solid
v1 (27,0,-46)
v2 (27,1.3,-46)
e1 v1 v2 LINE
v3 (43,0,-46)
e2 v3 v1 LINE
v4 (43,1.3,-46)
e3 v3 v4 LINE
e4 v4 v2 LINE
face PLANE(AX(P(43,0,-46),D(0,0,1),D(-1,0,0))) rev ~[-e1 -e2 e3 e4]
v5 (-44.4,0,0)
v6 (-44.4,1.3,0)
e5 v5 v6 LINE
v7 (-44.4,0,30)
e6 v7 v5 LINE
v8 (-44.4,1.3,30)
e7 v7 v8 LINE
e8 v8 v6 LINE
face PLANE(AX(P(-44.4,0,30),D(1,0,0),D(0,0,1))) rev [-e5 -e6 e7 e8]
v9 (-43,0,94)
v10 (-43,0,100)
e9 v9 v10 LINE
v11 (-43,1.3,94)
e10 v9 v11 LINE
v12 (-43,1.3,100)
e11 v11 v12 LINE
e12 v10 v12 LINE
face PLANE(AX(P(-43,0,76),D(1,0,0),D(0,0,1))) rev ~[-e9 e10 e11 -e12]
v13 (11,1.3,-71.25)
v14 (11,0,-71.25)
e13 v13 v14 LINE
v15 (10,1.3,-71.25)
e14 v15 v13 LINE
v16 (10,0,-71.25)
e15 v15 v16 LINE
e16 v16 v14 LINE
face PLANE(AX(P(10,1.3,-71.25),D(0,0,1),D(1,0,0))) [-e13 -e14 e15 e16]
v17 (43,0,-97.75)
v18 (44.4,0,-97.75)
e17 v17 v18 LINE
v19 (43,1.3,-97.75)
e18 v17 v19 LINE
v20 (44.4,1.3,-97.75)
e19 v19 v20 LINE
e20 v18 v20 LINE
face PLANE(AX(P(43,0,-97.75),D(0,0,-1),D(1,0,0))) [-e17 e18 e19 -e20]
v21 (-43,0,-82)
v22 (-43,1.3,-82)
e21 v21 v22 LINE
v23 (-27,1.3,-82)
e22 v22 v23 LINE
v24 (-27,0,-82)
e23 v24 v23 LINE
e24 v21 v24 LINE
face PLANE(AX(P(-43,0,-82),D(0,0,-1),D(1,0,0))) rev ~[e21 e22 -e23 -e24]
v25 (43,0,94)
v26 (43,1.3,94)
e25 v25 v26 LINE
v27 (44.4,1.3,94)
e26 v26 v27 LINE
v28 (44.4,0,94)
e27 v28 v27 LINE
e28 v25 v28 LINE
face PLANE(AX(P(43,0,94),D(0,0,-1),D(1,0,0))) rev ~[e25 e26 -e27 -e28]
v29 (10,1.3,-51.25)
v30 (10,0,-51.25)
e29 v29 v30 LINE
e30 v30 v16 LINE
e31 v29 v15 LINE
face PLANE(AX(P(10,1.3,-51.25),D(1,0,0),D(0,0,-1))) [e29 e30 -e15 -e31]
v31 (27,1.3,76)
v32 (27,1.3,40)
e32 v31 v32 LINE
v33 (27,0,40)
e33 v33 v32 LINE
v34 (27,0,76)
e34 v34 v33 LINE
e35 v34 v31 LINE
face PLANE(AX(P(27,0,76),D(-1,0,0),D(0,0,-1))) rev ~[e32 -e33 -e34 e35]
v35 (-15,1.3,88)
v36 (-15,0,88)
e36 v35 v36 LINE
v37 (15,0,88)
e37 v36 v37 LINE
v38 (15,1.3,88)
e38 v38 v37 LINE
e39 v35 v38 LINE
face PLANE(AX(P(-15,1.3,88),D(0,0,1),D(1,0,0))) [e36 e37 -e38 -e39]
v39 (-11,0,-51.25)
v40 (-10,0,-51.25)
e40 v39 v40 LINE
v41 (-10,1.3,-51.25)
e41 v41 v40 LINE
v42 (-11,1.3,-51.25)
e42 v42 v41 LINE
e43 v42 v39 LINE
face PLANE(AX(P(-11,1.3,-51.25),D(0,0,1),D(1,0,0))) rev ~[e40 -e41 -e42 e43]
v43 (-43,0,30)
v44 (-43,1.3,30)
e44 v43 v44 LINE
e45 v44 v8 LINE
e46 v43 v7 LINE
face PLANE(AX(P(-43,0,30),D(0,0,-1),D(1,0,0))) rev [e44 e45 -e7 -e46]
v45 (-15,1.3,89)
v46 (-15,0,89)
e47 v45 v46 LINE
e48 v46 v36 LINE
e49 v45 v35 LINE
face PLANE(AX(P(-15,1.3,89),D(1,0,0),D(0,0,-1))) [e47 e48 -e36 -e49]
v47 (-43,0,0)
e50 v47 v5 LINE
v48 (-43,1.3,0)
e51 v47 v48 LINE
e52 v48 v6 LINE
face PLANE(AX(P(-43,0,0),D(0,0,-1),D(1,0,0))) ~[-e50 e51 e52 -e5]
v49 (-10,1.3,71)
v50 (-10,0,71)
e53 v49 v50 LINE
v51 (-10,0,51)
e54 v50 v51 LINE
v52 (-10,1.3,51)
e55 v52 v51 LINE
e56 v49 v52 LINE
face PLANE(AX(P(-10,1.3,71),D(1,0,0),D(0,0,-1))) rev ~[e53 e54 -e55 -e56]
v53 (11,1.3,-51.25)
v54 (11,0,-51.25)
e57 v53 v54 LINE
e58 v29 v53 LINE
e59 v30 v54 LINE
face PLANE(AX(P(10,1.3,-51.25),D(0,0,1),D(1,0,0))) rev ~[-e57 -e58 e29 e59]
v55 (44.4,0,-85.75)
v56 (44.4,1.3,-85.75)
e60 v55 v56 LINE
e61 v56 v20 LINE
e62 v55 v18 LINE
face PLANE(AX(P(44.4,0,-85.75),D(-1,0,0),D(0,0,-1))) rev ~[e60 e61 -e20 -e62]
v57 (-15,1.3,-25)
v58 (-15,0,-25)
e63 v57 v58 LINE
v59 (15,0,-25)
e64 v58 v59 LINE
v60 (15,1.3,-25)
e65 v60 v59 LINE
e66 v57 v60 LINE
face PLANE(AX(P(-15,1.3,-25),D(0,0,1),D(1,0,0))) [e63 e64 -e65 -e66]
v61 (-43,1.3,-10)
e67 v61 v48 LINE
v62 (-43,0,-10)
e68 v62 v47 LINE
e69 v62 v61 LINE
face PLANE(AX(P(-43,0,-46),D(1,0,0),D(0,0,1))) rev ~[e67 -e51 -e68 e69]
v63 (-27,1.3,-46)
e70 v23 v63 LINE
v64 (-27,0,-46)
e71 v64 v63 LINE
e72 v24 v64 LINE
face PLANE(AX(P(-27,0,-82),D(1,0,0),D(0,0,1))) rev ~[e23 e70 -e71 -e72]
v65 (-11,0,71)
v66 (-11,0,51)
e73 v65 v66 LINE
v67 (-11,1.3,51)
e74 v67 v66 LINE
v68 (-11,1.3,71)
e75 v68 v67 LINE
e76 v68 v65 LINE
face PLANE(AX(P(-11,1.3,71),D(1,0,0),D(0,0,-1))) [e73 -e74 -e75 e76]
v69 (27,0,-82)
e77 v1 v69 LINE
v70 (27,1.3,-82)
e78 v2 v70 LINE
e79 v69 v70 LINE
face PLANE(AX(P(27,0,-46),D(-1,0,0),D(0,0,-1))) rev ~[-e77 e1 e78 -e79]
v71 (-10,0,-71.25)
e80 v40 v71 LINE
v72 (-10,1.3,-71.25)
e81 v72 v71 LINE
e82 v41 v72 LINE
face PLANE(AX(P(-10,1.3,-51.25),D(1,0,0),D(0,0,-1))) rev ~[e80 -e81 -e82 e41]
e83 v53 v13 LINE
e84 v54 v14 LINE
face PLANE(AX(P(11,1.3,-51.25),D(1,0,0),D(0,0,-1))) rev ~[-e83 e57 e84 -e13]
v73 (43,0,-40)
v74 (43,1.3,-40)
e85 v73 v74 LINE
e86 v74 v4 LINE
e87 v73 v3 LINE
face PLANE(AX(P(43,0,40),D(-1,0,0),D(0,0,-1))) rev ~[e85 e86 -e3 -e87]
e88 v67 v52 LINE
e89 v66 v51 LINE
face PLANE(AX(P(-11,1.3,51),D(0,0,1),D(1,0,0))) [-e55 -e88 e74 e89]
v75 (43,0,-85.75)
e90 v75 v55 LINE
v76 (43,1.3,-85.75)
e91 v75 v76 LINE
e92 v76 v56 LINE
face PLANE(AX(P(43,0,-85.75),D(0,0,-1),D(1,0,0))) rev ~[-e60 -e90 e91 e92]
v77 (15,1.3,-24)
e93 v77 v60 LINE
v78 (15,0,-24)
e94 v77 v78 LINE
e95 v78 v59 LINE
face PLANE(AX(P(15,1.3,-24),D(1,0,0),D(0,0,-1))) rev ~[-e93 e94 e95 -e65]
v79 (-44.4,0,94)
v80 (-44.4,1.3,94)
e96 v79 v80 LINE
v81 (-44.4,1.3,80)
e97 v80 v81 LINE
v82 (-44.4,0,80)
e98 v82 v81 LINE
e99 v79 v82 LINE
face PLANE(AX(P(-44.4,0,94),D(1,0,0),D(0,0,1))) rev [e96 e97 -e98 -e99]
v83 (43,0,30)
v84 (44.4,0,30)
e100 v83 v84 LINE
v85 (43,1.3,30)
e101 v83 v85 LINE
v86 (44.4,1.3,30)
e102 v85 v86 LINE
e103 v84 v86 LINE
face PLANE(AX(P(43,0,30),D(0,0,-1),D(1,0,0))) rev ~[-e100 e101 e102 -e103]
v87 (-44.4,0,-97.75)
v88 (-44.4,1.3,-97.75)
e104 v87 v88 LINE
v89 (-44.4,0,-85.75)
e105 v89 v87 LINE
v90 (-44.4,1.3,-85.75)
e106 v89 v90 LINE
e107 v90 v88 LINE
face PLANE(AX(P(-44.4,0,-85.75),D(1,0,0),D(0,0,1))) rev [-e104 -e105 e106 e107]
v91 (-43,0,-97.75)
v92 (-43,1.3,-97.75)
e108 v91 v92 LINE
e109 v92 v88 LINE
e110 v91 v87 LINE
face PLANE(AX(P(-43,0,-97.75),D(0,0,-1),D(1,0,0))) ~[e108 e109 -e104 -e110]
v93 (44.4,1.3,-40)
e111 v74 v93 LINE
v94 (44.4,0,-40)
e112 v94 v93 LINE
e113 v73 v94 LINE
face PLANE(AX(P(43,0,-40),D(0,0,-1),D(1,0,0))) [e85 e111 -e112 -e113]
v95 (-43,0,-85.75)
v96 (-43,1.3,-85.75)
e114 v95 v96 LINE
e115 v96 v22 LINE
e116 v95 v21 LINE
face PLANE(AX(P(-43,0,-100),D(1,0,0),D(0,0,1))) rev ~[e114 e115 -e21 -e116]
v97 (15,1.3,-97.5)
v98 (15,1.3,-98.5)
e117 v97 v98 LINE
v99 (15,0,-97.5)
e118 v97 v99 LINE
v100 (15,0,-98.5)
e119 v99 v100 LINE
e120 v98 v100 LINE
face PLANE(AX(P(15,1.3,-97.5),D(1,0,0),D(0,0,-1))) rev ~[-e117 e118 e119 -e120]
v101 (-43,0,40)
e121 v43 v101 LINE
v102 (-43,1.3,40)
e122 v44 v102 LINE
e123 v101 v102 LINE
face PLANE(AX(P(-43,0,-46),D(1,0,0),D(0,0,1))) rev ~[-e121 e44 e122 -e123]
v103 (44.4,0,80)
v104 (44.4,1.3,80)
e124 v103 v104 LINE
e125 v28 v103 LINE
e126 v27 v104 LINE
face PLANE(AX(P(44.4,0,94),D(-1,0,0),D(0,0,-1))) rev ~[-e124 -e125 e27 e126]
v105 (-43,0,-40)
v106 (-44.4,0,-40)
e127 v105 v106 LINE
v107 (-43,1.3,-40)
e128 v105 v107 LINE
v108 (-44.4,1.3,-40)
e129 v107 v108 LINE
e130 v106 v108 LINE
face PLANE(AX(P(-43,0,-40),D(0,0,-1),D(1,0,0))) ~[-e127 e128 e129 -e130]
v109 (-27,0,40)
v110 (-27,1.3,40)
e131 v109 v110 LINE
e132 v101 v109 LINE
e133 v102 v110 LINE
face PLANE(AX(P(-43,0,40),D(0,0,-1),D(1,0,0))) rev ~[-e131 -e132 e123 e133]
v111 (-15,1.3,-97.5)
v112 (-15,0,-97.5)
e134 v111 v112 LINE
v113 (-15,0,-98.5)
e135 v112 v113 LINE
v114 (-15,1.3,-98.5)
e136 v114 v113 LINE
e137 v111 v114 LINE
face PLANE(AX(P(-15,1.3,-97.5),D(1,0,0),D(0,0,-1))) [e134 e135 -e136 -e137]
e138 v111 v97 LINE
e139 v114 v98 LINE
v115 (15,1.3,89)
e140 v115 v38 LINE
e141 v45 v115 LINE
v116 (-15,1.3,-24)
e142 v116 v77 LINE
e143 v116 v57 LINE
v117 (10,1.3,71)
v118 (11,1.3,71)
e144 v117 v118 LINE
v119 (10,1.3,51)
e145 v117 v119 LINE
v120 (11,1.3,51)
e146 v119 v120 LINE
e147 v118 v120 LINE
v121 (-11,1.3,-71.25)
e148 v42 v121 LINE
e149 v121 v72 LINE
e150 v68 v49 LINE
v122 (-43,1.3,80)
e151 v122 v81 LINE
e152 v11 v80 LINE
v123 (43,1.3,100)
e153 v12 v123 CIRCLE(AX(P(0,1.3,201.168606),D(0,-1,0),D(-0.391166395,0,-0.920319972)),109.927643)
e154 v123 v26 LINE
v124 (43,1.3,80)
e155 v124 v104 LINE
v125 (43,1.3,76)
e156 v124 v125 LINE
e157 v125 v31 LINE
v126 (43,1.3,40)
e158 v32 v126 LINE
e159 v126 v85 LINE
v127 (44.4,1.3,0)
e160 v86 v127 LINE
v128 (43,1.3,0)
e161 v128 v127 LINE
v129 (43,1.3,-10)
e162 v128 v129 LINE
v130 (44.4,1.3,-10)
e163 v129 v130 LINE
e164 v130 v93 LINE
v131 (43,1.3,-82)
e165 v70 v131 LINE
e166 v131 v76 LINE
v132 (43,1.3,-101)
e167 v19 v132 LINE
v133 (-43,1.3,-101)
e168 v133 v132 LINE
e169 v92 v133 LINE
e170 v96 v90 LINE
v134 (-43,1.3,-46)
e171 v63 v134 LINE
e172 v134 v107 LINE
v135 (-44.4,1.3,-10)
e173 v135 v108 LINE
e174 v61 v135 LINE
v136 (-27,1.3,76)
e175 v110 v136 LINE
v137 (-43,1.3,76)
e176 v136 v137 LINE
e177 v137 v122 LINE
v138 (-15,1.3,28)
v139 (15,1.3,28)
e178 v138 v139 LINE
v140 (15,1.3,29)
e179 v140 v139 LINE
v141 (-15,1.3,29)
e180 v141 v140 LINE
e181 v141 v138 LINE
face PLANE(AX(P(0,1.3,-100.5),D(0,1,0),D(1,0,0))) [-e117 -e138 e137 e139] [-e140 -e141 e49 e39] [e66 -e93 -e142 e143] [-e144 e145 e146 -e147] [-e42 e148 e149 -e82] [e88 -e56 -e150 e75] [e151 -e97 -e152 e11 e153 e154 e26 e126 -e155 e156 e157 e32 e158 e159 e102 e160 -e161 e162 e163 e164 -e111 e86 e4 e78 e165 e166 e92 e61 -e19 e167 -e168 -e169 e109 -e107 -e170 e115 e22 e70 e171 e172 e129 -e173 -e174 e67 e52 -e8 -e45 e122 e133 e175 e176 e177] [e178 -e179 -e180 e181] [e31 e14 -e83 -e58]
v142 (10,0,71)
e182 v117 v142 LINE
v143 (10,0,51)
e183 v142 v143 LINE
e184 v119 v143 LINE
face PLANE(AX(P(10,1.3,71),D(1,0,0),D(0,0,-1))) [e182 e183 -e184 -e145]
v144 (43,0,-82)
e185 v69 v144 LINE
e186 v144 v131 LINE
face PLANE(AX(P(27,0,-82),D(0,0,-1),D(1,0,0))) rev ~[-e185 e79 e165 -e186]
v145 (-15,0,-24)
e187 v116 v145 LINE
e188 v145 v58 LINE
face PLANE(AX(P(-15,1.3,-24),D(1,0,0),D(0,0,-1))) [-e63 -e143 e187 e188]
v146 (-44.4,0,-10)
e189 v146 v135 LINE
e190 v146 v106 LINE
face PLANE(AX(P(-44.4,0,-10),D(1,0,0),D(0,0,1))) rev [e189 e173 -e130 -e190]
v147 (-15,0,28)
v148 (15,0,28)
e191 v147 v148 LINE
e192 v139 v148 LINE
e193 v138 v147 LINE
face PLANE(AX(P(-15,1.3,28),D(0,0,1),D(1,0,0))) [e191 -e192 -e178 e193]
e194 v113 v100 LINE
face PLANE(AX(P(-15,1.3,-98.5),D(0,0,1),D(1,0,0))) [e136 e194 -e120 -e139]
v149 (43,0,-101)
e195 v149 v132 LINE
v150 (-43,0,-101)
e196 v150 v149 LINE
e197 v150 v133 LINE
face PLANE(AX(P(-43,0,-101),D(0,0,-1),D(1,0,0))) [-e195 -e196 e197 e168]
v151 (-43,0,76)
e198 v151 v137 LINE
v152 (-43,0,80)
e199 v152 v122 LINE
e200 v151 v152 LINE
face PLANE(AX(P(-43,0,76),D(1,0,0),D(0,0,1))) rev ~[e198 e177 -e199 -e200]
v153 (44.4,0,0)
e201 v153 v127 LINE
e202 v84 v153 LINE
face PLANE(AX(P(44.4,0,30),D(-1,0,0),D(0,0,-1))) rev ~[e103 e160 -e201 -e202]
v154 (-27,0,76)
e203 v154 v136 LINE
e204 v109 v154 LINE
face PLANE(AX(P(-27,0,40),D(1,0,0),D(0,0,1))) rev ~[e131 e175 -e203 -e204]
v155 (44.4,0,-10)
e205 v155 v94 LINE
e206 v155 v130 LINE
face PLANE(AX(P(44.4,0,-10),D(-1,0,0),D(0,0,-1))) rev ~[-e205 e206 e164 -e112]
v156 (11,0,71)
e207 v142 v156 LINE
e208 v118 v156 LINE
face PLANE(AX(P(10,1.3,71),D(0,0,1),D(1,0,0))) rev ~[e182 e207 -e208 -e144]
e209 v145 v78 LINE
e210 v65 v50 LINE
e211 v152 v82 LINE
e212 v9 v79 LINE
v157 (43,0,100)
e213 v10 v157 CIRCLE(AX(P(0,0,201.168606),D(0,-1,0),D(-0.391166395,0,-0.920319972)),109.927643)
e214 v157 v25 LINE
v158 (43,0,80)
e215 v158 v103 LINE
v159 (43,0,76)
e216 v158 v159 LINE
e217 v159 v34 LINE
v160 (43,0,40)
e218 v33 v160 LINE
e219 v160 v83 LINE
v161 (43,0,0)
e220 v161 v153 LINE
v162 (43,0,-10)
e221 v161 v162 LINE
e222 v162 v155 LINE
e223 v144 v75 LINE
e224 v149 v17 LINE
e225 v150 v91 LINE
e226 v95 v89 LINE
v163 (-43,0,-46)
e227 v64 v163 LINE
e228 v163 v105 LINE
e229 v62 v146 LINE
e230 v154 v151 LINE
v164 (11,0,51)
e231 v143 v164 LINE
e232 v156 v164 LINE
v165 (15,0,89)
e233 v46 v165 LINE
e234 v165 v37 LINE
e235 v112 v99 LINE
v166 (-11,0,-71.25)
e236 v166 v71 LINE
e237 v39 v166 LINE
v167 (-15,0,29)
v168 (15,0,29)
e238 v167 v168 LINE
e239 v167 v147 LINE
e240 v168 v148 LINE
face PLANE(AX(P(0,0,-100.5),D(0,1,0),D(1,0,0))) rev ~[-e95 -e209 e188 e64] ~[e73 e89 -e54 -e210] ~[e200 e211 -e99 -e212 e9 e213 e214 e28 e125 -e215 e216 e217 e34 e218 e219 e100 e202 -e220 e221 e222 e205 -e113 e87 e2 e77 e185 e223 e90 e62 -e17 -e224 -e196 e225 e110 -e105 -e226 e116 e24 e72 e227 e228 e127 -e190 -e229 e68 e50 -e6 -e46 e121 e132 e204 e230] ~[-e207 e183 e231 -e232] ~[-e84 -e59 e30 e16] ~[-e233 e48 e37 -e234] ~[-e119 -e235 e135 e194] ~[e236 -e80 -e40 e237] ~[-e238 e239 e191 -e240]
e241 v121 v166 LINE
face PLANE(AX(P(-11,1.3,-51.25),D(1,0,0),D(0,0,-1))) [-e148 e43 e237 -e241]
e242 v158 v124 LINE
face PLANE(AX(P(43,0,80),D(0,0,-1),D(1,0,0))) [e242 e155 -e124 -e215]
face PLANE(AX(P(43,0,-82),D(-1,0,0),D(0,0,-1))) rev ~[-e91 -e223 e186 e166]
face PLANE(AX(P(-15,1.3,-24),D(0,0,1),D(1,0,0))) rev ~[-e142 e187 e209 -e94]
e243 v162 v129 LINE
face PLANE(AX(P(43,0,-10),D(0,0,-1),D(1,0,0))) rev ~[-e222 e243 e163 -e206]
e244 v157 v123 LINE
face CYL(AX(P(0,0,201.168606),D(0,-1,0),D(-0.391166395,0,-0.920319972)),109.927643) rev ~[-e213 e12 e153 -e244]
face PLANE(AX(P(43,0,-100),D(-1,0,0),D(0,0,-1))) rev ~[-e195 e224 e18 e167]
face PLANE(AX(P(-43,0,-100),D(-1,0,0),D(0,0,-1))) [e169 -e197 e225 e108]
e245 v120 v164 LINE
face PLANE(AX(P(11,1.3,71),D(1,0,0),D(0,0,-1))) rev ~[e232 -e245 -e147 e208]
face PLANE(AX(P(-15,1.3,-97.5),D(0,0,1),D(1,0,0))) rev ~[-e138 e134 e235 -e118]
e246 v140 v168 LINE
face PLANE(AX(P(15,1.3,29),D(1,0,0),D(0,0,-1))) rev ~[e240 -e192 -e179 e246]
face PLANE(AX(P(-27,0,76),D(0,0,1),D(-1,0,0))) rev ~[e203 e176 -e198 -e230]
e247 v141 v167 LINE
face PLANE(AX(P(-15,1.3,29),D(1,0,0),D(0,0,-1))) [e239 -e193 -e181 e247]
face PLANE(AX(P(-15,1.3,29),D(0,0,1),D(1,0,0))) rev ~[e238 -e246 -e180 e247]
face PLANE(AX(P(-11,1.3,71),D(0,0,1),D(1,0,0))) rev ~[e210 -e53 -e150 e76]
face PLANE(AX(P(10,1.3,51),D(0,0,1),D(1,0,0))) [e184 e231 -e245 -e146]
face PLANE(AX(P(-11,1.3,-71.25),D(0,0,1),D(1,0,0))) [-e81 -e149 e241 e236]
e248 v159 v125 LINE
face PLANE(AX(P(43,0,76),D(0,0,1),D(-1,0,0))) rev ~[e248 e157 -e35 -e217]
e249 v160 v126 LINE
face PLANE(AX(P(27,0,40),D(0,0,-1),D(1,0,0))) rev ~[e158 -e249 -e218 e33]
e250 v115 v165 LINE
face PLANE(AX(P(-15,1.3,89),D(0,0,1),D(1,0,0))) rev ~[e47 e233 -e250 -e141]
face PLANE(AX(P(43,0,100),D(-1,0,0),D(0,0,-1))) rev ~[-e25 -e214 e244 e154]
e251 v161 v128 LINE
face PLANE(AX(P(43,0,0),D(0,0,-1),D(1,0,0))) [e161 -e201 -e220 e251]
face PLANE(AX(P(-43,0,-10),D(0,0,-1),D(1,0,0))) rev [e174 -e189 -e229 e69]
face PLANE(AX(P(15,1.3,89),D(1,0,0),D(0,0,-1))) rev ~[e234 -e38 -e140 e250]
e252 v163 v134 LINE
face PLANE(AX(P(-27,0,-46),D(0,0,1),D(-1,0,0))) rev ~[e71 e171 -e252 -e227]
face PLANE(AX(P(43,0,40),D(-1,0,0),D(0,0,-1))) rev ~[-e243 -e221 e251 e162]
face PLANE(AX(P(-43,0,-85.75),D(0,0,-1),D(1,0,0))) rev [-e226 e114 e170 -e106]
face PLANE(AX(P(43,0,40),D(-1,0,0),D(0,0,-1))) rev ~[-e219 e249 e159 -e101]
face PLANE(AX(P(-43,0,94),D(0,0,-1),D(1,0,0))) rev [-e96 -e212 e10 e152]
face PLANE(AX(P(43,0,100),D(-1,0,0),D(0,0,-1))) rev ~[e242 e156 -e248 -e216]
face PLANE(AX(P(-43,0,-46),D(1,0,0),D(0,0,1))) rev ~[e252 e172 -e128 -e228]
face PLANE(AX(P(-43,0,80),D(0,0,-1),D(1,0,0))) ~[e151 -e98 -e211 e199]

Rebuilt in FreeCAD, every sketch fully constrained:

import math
import FreeCAD as App
import Part
import Sketcher

doc = App.newDocument("Part")
body = doc.addObject("PartDesign::Body", "Body")

sketch1 = body.newObject("Sketcher::SketchObject", "Sketch")
sketch1.AttachmentSupport = (doc.getObject("XZ_Plane"), [""])
sketch1.MapMode = "FlatFace"
sketch1.addGeometry(Part.LineSegment(App.Vector(43, -100, 0), App.Vector(-43, -100, 0)), False)
sketch1.addGeometry(Part.LineSegment(App.Vector(-43, -100, 0), App.Vector(-43, -82, 0)), False)
sketch1.addGeometry(Part.LineSegment(App.Vector(-43, -82, 0), App.Vector(-27, -82, 0)), False)
sketch1.addGeometry(Part.LineSegment(App.Vector(-27, -82, 0), App.Vector(-27, -46, 0)), False)
sketch1.addGeometry(Part.LineSegment(App.Vector(-27, -46, 0), App.Vector(-43, -46, 0)), False)
sketch1.addGeometry(Part.LineSegment(App.Vector(-43, -46, 0), App.Vector(-43, 40, 0)), False)
sketch1.addGeometry(Part.LineSegment(App.Vector(-43, 40, 0), App.Vector(-27, 40, 0)), False)
sketch1.addGeometry(Part.LineSegment(App.Vector(-27, 40, 0), App.Vector(-27, 76, 0)), False)
sketch1.addGeometry(Part.LineSegment(App.Vector(-27, 76, 0), App.Vector(-43, 76, 0)), False)
sketch1.addGeometry(Part.LineSegment(App.Vector(-43, 76, 0), App.Vector(-43, 100, 0)), False)
sketch1.addGeometry(Part.ArcOfCircle(Part.Circle(App.Vector(0, 201, 0), App.Vector(0, 0, 1), 110), math.radians(-113), math.radians(-67)), False)
sketch1.addGeometry(Part.LineSegment(App.Vector(43, 100, 0), App.Vector(43, 76, 0)), False)
sketch1.addGeometry(Part.LineSegment(App.Vector(43, 76, 0), App.Vector(27, 76, 0)), False)
sketch1.addGeometry(Part.LineSegment(App.Vector(27, 76, 0), App.Vector(27, 40, 0)), False)
sketch1.addGeometry(Part.LineSegment(App.Vector(27, 40, 0), App.Vector(43, 40, 0)), False)
sketch1.addGeometry(Part.LineSegment(App.Vector(43, 40, 0), App.Vector(43, -46, 0)), False)
sketch1.addGeometry(Part.LineSegment(App.Vector(43, -46, 0), App.Vector(27, -46, 0)), False)
sketch1.addGeometry(Part.LineSegment(App.Vector(27, -46, 0), App.Vector(27, -82, 0)), False)
sketch1.addGeometry(Part.LineSegment(App.Vector(27, -82, 0), App.Vector(43, -82, 0)), False)
sketch1.addGeometry(Part.LineSegment(App.Vector(43, -82, 0), App.Vector(43, -100, 0)), False)
sketch1.addConstraint(Sketcher.Constraint("Coincident", 0, 2, 1, 1))
sketch1.addConstraint(Sketcher.Constraint("Coincident", 1, 2, 2, 1))
sketch1.addConstraint(Sketcher.Constraint("Coincident", 2, 2, 3, 1))
sketch1.addConstraint(Sketcher.Constraint("Coincident", 3, 2, 4, 1))
sketch1.addConstraint(Sketcher.Constraint("Coincident", 4, 2, 5, 1))
sketch1.addConstraint(Sketcher.Constraint("Coincident", 5, 2, 6, 1))
sketch1.addConstraint(Sketcher.Constraint("Coincident", 6, 2, 7, 1))
sketch1.addConstraint(Sketcher.Constraint("Coincident", 7, 2, 8, 1))
sketch1.addConstraint(Sketcher.Constraint("Coincident", 8, 2, 9, 1))
sketch1.addConstraint(Sketcher.Constraint("Coincident", 9, 2, 10, 1))
sketch1.addConstraint(Sketcher.Constraint("Coincident", 10, 2, 11, 1))
sketch1.addConstraint(Sketcher.Constraint("Coincident", 11, 2, 12, 1))
sketch1.addConstraint(Sketcher.Constraint("Coincident", 12, 2, 13, 1))
sketch1.addConstraint(Sketcher.Constraint("Coincident", 13, 2, 14, 1))
sketch1.addConstraint(Sketcher.Constraint("Coincident", 14, 2, 15, 1))
sketch1.addConstraint(Sketcher.Constraint("Coincident", 15, 2, 16, 1))
sketch1.addConstraint(Sketcher.Constraint("Coincident", 16, 2, 17, 1))
sketch1.addConstraint(Sketcher.Constraint("Coincident", 17, 2, 18, 1))
sketch1.addConstraint(Sketcher.Constraint("Coincident", 18, 2, 19, 1))
sketch1.addConstraint(Sketcher.Constraint("Coincident", 19, 2, 0, 1))
sketch1.addConstraint(Sketcher.Constraint("Horizontal", 0))
sketch1.addConstraint(Sketcher.Constraint("Vertical", 1))
sketch1.addConstraint(Sketcher.Constraint("Horizontal", 2))
sketch1.addConstraint(Sketcher.Constraint("Vertical", 3))
sketch1.addConstraint(Sketcher.Constraint("Horizontal", 4))
sketch1.addConstraint(Sketcher.Constraint("Vertical", 5))
sketch1.addConstraint(Sketcher.Constraint("Horizontal", 6))
sketch1.addConstraint(Sketcher.Constraint("Vertical", 7))
sketch1.addConstraint(Sketcher.Constraint("Horizontal", 8))
sketch1.addConstraint(Sketcher.Constraint("Vertical", 9))
sketch1.addConstraint(Sketcher.Constraint("Vertical", 11))
sketch1.addConstraint(Sketcher.Constraint("Horizontal", 12))
sketch1.addConstraint(Sketcher.Constraint("Vertical", 13))
sketch1.addConstraint(Sketcher.Constraint("Horizontal", 14))
sketch1.addConstraint(Sketcher.Constraint("Vertical", 15))
sketch1.addConstraint(Sketcher.Constraint("Horizontal", 16))
sketch1.addConstraint(Sketcher.Constraint("Vertical", 17))
sketch1.addConstraint(Sketcher.Constraint("Horizontal", 18))
sketch1.addConstraint(Sketcher.Constraint("Vertical", 19))
sketch1.addConstraint(Sketcher.Constraint("Symmetric", 0, 2, 10, 2, -1, 1))
sketch1.addConstraint(Sketcher.Constraint("Symmetric", 9, 2, 19, 2, -1, 1))
sketch1.addConstraint(Sketcher.Constraint("Symmetric", 8, 2, 11, 2, -2))
sketch1.addConstraint(Sketcher.Constraint("Symmetric", 6, 2, 13, 2, -2))
sketch1.addConstraint(Sketcher.Constraint("Symmetric", 4, 2, 15, 2, -2))
sketch1.addConstraint(Sketcher.Constraint("Symmetric", 2, 2, 17, 2, -2))
sketch1.addConstraint(Sketcher.Constraint("Vertical", 1, 2, 4, 2))
sketch1.addConstraint(Sketcher.Constraint("Vertical", 3, 2, 6, 2))
sketch1.addConstraint(Sketcher.Constraint("Equal", 0, 5))
sketch1.addConstraint(Sketcher.Constraint("Equal", 3, 7))
sketch1.addConstraint(Sketcher.Constraint("DistanceX", 0, 2, 0, 1, 86.0))
sketch1.addConstraint(Sketcher.Constraint("DistanceX", 2, 1, 2, 2, 16.0))
sketch1.addConstraint(Sketcher.Constraint("DistanceY", 1, 1, 1, 2, 18.0))
sketch1.addConstraint(Sketcher.Constraint("DistanceY", 3, 1, 3, 2, 36.0))
sketch1.addConstraint(Sketcher.Constraint("DistanceY", 9, 1, 9, 2, 24.0))
sketch1.addConstraint(Sketcher.Constraint("Radius", 10, 109.927643))
pad1 = body.newObject("PartDesign::Pad", "Pad")
pad1.Profile = sketch1
pad1.Length = 1.3
pad1.Reversed = True

sketch2 = body.newObject("Sketcher::SketchObject", "Sketch001")
sketch2.AttachmentSupport = (doc.getObject("XZ_Plane"), [""])
sketch2.MapMode = "FlatFace"
sketch2.addGeometry(Part.LineSegment(App.Vector(43, -97.8, 0), App.Vector(43, -85.8, 0)), False)
sketch2.addGeometry(Part.LineSegment(App.Vector(43, -85.8, 0), App.Vector(44.4, -85.8, 0)), False)
sketch2.addGeometry(Part.LineSegment(App.Vector(44.4, -85.8, 0), App.Vector(44.4, -97.8, 0)), False)
sketch2.addGeometry(Part.LineSegment(App.Vector(44.4, -97.8, 0), App.Vector(43, -97.8, 0)), False)
sketch2.addGeometry(Part.LineSegment(App.Vector(43, -40, 0), App.Vector(43, -10, 0)), False)
sketch2.addGeometry(Part.LineSegment(App.Vector(43, -10, 0), App.Vector(44.4, -10, 0)), False)
sketch2.addGeometry(Part.LineSegment(App.Vector(44.4, -10, 0), App.Vector(44.4, -40, 0)), False)
sketch2.addGeometry(Part.LineSegment(App.Vector(44.4, -40, 0), App.Vector(43, -40, 0)), False)
sketch2.addGeometry(Part.LineSegment(App.Vector(43, 80, 0), App.Vector(43, 94, 0)), False)
sketch2.addGeometry(Part.LineSegment(App.Vector(43, 94, 0), App.Vector(44.4, 94, 0)), False)
sketch2.addGeometry(Part.LineSegment(App.Vector(44.4, 94, 0), App.Vector(44.4, 80, 0)), False)
sketch2.addGeometry(Part.LineSegment(App.Vector(44.4, 80, 0), App.Vector(43, 80, 0)), False)
sketch2.addGeometry(Part.LineSegment(App.Vector(43, 0, 0), App.Vector(43, 30, 0)), False)
sketch2.addGeometry(Part.LineSegment(App.Vector(43, 30, 0), App.Vector(44.4, 30, 0)), False)
sketch2.addGeometry(Part.LineSegment(App.Vector(44.4, 30, 0), App.Vector(44.4, 0, 0)), False)
sketch2.addGeometry(Part.LineSegment(App.Vector(44.4, 0, 0), App.Vector(43, 0, 0)), False)
sketch2.addConstraint(Sketcher.Constraint("Coincident", 0, 2, 1, 1))
sketch2.addConstraint(Sketcher.Constraint("Coincident", 1, 2, 2, 1))
sketch2.addConstraint(Sketcher.Constraint("Coincident", 2, 2, 3, 1))
sketch2.addConstraint(Sketcher.Constraint("Coincident", 3, 2, 0, 1))
sketch2.addConstraint(Sketcher.Constraint("Coincident", 4, 2, 5, 1))
sketch2.addConstraint(Sketcher.Constraint("Coincident", 5, 2, 6, 1))
sketch2.addConstraint(Sketcher.Constraint("Coincident", 6, 2, 7, 1))
sketch2.addConstraint(Sketcher.Constraint("Coincident", 7, 2, 4, 1))
sketch2.addConstraint(Sketcher.Constraint("Coincident", 8, 2, 9, 1))
sketch2.addConstraint(Sketcher.Constraint("Coincident", 9, 2, 10, 1))
sketch2.addConstraint(Sketcher.Constraint("Coincident", 10, 2, 11, 1))
sketch2.addConstraint(Sketcher.Constraint("Coincident", 11, 2, 8, 1))
sketch2.addConstraint(Sketcher.Constraint("Coincident", 12, 2, 13, 1))
sketch2.addConstraint(Sketcher.Constraint("Coincident", 13, 2, 14, 1))
sketch2.addConstraint(Sketcher.Constraint("Coincident", 14, 2, 15, 1))
sketch2.addConstraint(Sketcher.Constraint("Coincident", 15, 2, 12, 1))
sketch2.addConstraint(Sketcher.Constraint("Vertical", 0))
sketch2.addConstraint(Sketcher.Constraint("Horizontal", 1))
sketch2.addConstraint(Sketcher.Constraint("Vertical", 2))
sketch2.addConstraint(Sketcher.Constraint("Horizontal", 3))
sketch2.addConstraint(Sketcher.Constraint("Vertical", 4))
sketch2.addConstraint(Sketcher.Constraint("Horizontal", 5))
sketch2.addConstraint(Sketcher.Constraint("Vertical", 6))
sketch2.addConstraint(Sketcher.Constraint("Horizontal", 7))
sketch2.addConstraint(Sketcher.Constraint("Vertical", 8))
sketch2.addConstraint(Sketcher.Constraint("Horizontal", 9))
sketch2.addConstraint(Sketcher.Constraint("Vertical", 10))
sketch2.addConstraint(Sketcher.Constraint("Horizontal", 11))
sketch2.addConstraint(Sketcher.Constraint("Vertical", 12))
sketch2.addConstraint(Sketcher.Constraint("Horizontal", 13))
sketch2.addConstraint(Sketcher.Constraint("Vertical", 14))
sketch2.addConstraint(Sketcher.Constraint("Horizontal", 15))
sketch2.addConstraint(Sketcher.Constraint("PointOnObject", 14, 2, -1))
sketch2.addConstraint(Sketcher.Constraint("Vertical", 3, 2, 4, 2))
sketch2.addConstraint(Sketcher.Constraint("Vertical", 2, 2, 5, 2))
sketch2.addConstraint(Sketcher.Constraint("Vertical", 7, 2, 8, 2))
sketch2.addConstraint(Sketcher.Constraint("Vertical", 6, 2, 9, 2))
sketch2.addConstraint(Sketcher.Constraint("Vertical", 11, 2, 12, 2))
sketch2.addConstraint(Sketcher.Constraint("Vertical", 10, 2, 13, 2))
sketch2.addConstraint(Sketcher.Constraint("Equal", 6, 12))
sketch2.addConstraint(Sketcher.Constraint("DistanceY", 0, 1, 0, 2, 12.0))
sketch2.addConstraint(Sketcher.Constraint("DistanceY", 4, 1, 4, 2, 30.0))
sketch2.addConstraint(Sketcher.Constraint("DistanceY", 8, 1, 8, 2, 14.0))
sketch2.addConstraint(Sketcher.Constraint("DistanceX", 1, 1, 1, 2, 1.4))
sketch2.addConstraint(Sketcher.Constraint("DistanceX", -1, 1, 0, 2, 43.0))
sketch2.addConstraint(Sketcher.Constraint("DistanceY", 4, 2, -1, 1, 10.0))
sketch2.addConstraint(Sketcher.Constraint("DistanceY", -1, 1, 8, 2, 94.0))
sketch2.addConstraint(Sketcher.Constraint("DistanceY", 0, 2, -1, 1, 85.75))
pad2 = body.newObject("PartDesign::Pad", "Pad001")
pad2.Profile = sketch2
pad2.Length = 1.3
pad2.Reversed = True
doc.recompute()

mirrored = body.newObject("PartDesign::Mirrored", "Mirrored")
mirrored.Originals = [pad2]
mirrored.MirrorPlane = (doc.getObject("YZ_Plane"), [""])
body.Tip = mirrored

sketch3 = body.newObject("Sketcher::SketchObject", "Sketch002")
sketch3.AttachmentSupport = (doc.getObject("XZ_Plane"), [""])
sketch3.MapMode = "FlatFace"
sketch3.AttachmentOffset = App.Placement(App.Vector(0, 0, -1.3), App.Rotation())
sketch3.addGeometry(Part.LineSegment(App.Vector(-15, -98.5, 0), App.Vector(-15, -97.5, 0)), False)
sketch3.addGeometry(Part.LineSegment(App.Vector(-15, -97.5, 0), App.Vector(15, -97.5, 0)), False)
sketch3.addGeometry(Part.LineSegment(App.Vector(15, -97.5, 0), App.Vector(15, -98.5, 0)), False)
sketch3.addGeometry(Part.LineSegment(App.Vector(15, -98.5, 0), App.Vector(-15, -98.5, 0)), False)
sketch3.addConstraint(Sketcher.Constraint("Coincident", 0, 2, 1, 1))
sketch3.addConstraint(Sketcher.Constraint("Coincident", 1, 2, 2, 1))
sketch3.addConstraint(Sketcher.Constraint("Coincident", 2, 2, 3, 1))
sketch3.addConstraint(Sketcher.Constraint("Coincident", 3, 2, 0, 1))
sketch3.addConstraint(Sketcher.Constraint("Vertical", 0))
sketch3.addConstraint(Sketcher.Constraint("Horizontal", 1))
sketch3.addConstraint(Sketcher.Constraint("Vertical", 2))
sketch3.addConstraint(Sketcher.Constraint("Horizontal", 3))
sketch3.addConstraint(Sketcher.Constraint("DistanceX", 1, 1, 1, 2, 30.0))
sketch3.addConstraint(Sketcher.Constraint("DistanceY", 0, 1, 0, 2, 1.0))
sketch3.addConstraint(Sketcher.Constraint("DistanceX", 0, 2, -1, 1, 15.0))
sketch3.addConstraint(Sketcher.Constraint("DistanceY", 0, 2, -1, 1, 97.5))
pocket1 = body.newObject("PartDesign::Pocket", "Pocket")
pocket1.Profile = sketch3
pocket1.Type = "ThroughAll"
pocket1.Reversed = True

sketch4 = body.newObject("Sketcher::SketchObject", "Sketch003")
sketch4.AttachmentSupport = (doc.getObject("XZ_Plane"), [""])
sketch4.MapMode = "FlatFace"
sketch4.AttachmentOffset = App.Placement(App.Vector(0, 0, -1.3), App.Rotation())
sketch4.addGeometry(Part.LineSegment(App.Vector(-15, 88, 0), App.Vector(-15, 89, 0)), False)
sketch4.addGeometry(Part.LineSegment(App.Vector(-15, 89, 0), App.Vector(15, 89, 0)), False)
sketch4.addGeometry(Part.LineSegment(App.Vector(15, 89, 0), App.Vector(15, 88, 0)), False)
sketch4.addGeometry(Part.LineSegment(App.Vector(15, 88, 0), App.Vector(-15, 88, 0)), False)
sketch4.addConstraint(Sketcher.Constraint("Coincident", 0, 2, 1, 1))
sketch4.addConstraint(Sketcher.Constraint("Coincident", 1, 2, 2, 1))
sketch4.addConstraint(Sketcher.Constraint("Coincident", 2, 2, 3, 1))
sketch4.addConstraint(Sketcher.Constraint("Coincident", 3, 2, 0, 1))
sketch4.addConstraint(Sketcher.Constraint("Vertical", 0))
sketch4.addConstraint(Sketcher.Constraint("Horizontal", 1))
sketch4.addConstraint(Sketcher.Constraint("Vertical", 2))
sketch4.addConstraint(Sketcher.Constraint("Horizontal", 3))
sketch4.addConstraint(Sketcher.Constraint("DistanceX", 1, 1, 1, 2, 30.0))
sketch4.addConstraint(Sketcher.Constraint("DistanceY", 0, 1, 0, 2, 1.0))
sketch4.addConstraint(Sketcher.Constraint("DistanceX", 0, 2, -1, 1, 15.0))
sketch4.addConstraint(Sketcher.Constraint("DistanceY", -1, 1, 0, 2, 89.0))
pocket2 = body.newObject("PartDesign::Pocket", "Pocket001")
pocket2.Profile = sketch4
pocket2.Type = "ThroughAll"
pocket2.Reversed = True

sketch5 = body.newObject("Sketcher::SketchObject", "Sketch004")
sketch5.AttachmentSupport = (doc.getObject("XZ_Plane"), [""])
sketch5.MapMode = "FlatFace"
sketch5.AttachmentOffset = App.Placement(App.Vector(0, 0, -1.3), App.Rotation())
sketch5.addGeometry(Part.LineSegment(App.Vector(-15, -25, 0), App.Vector(-15, -24, 0)), False)
sketch5.addGeometry(Part.LineSegment(App.Vector(-15, -24, 0), App.Vector(15, -24, 0)), False)
sketch5.addGeometry(Part.LineSegment(App.Vector(15, -24, 0), App.Vector(15, -25, 0)), False)
sketch5.addGeometry(Part.LineSegment(App.Vector(15, -25, 0), App.Vector(-15, -25, 0)), False)
sketch5.addConstraint(Sketcher.Constraint("Coincident", 0, 2, 1, 1))
sketch5.addConstraint(Sketcher.Constraint("Coincident", 1, 2, 2, 1))
sketch5.addConstraint(Sketcher.Constraint("Coincident", 2, 2, 3, 1))
sketch5.addConstraint(Sketcher.Constraint("Coincident", 3, 2, 0, 1))
sketch5.addConstraint(Sketcher.Constraint("Vertical", 0))
sketch5.addConstraint(Sketcher.Constraint("Horizontal", 1))
sketch5.addConstraint(Sketcher.Constraint("Vertical", 2))
sketch5.addConstraint(Sketcher.Constraint("Horizontal", 3))
sketch5.addConstraint(Sketcher.Constraint("DistanceX", 1, 1, 1, 2, 30.0))
sketch5.addConstraint(Sketcher.Constraint("DistanceY", 0, 1, 0, 2, 1.0))
sketch5.addConstraint(Sketcher.Constraint("DistanceX", 0, 2, -1, 1, 15.0))
sketch5.addConstraint(Sketcher.Constraint("DistanceY", 0, 2, -1, 1, 24.0))
pocket3 = body.newObject("PartDesign::Pocket", "Pocket002")
pocket3.Profile = sketch5
pocket3.Type = "ThroughAll"
pocket3.Reversed = True

sketch6 = body.newObject("Sketcher::SketchObject", "Sketch005")
sketch6.AttachmentSupport = (doc.getObject("XZ_Plane"), [""])
sketch6.MapMode = "FlatFace"
sketch6.AttachmentOffset = App.Placement(App.Vector(0, 0, -1.3), App.Rotation())
sketch6.addGeometry(Part.LineSegment(App.Vector(-11, 51, 0), App.Vector(-11, 71, 0)), False)
sketch6.addGeometry(Part.LineSegment(App.Vector(-11, 71, 0), App.Vector(-10, 71, 0)), False)
sketch6.addGeometry(Part.LineSegment(App.Vector(-10, 71, 0), App.Vector(-10, 51, 0)), False)
sketch6.addGeometry(Part.LineSegment(App.Vector(-10, 51, 0), App.Vector(-11, 51, 0)), False)
sketch6.addGeometry(Part.LineSegment(App.Vector(10, 51, 0), App.Vector(10, 71, 0)), False)
sketch6.addGeometry(Part.LineSegment(App.Vector(10, 71, 0), App.Vector(11, 71, 0)), False)
sketch6.addGeometry(Part.LineSegment(App.Vector(11, 71, 0), App.Vector(11, 51, 0)), False)
sketch6.addGeometry(Part.LineSegment(App.Vector(11, 51, 0), App.Vector(10, 51, 0)), False)
sketch6.addGeometry(Part.LineSegment(App.Vector(-15, 28, 0), App.Vector(-15, 29, 0)), False)
sketch6.addGeometry(Part.LineSegment(App.Vector(-15, 29, 0), App.Vector(15, 29, 0)), False)
sketch6.addGeometry(Part.LineSegment(App.Vector(15, 29, 0), App.Vector(15, 28, 0)), False)
sketch6.addGeometry(Part.LineSegment(App.Vector(15, 28, 0), App.Vector(-15, 28, 0)), False)
sketch6.addConstraint(Sketcher.Constraint("Coincident", 0, 2, 1, 1))
sketch6.addConstraint(Sketcher.Constraint("Coincident", 1, 2, 2, 1))
sketch6.addConstraint(Sketcher.Constraint("Coincident", 2, 2, 3, 1))
sketch6.addConstraint(Sketcher.Constraint("Coincident", 3, 2, 0, 1))
sketch6.addConstraint(Sketcher.Constraint("Coincident", 4, 2, 5, 1))
sketch6.addConstraint(Sketcher.Constraint("Coincident", 5, 2, 6, 1))
sketch6.addConstraint(Sketcher.Constraint("Coincident", 6, 2, 7, 1))
sketch6.addConstraint(Sketcher.Constraint("Coincident", 7, 2, 4, 1))
sketch6.addConstraint(Sketcher.Constraint("Coincident", 8, 2, 9, 1))
sketch6.addConstraint(Sketcher.Constraint("Coincident", 9, 2, 10, 1))
sketch6.addConstraint(Sketcher.Constraint("Coincident", 10, 2, 11, 1))
sketch6.addConstraint(Sketcher.Constraint("Coincident", 11, 2, 8, 1))
sketch6.addConstraint(Sketcher.Constraint("Vertical", 0))
sketch6.addConstraint(Sketcher.Constraint("Horizontal", 1))
sketch6.addConstraint(Sketcher.Constraint("Vertical", 2))
sketch6.addConstraint(Sketcher.Constraint("Horizontal", 3))
sketch6.addConstraint(Sketcher.Constraint("Vertical", 4))
sketch6.addConstraint(Sketcher.Constraint("Horizontal", 5))
sketch6.addConstraint(Sketcher.Constraint("Vertical", 6))
sketch6.addConstraint(Sketcher.Constraint("Horizontal", 7))
sketch6.addConstraint(Sketcher.Constraint("Vertical", 8))
sketch6.addConstraint(Sketcher.Constraint("Horizontal", 9))
sketch6.addConstraint(Sketcher.Constraint("Vertical", 10))
sketch6.addConstraint(Sketcher.Constraint("Horizontal", 11))
sketch6.addConstraint(Sketcher.Constraint("Symmetric", 1, 2, 4, 2, -2))
sketch6.addConstraint(Sketcher.Constraint("Symmetric", 3, 2, 6, 2, -2))
sketch6.addConstraint(Sketcher.Constraint("Equal", 7, 8))
sketch6.addConstraint(Sketcher.Constraint("DistanceX", 1, 1, 1, 2, 1.0))
sketch6.addConstraint(Sketcher.Constraint("DistanceX", 9, 1, 9, 2, 30.0))
sketch6.addConstraint(Sketcher.Constraint("DistanceY", 0, 1, 0, 2, 20.0))
sketch6.addConstraint(Sketcher.Constraint("DistanceX", 0, 2, -1, 1, 11.0))
sketch6.addConstraint(Sketcher.Constraint("DistanceY", -1, 1, 0, 2, 71.0))
sketch6.addConstraint(Sketcher.Constraint("DistanceX", 8, 2, -1, 1, 15.0))
sketch6.addConstraint(Sketcher.Constraint("DistanceY", -1, 1, 8, 2, 29.0))
pocket4 = body.newObject("PartDesign::Pocket", "Pocket003")
pocket4.Profile = sketch6
pocket4.Type = "ThroughAll"
pocket4.Reversed = True

sketch7 = body.newObject("Sketcher::SketchObject", "Sketch006")
sketch7.AttachmentSupport = (doc.getObject("XZ_Plane"), [""])
sketch7.MapMode = "FlatFace"
sketch7.AttachmentOffset = App.Placement(App.Vector(0, 0, -1.3), App.Rotation())
sketch7.addGeometry(Part.LineSegment(App.Vector(-11, -71.2, 0), App.Vector(-11, -51.2, 0)), False)
sketch7.addGeometry(Part.LineSegment(App.Vector(-11, -51.2, 0), App.Vector(-10, -51.2, 0)), False)
sketch7.addGeometry(Part.LineSegment(App.Vector(-10, -51.2, 0), App.Vector(-10, -71.2, 0)), False)
sketch7.addGeometry(Part.LineSegment(App.Vector(-10, -71.2, 0), App.Vector(-11, -71.2, 0)), False)
sketch7.addGeometry(Part.LineSegment(App.Vector(10, -71.2, 0), App.Vector(10, -51.2, 0)), False)
sketch7.addGeometry(Part.LineSegment(App.Vector(10, -51.2, 0), App.Vector(11, -51.2, 0)), False)
sketch7.addGeometry(Part.LineSegment(App.Vector(11, -51.2, 0), App.Vector(11, -71.2, 0)), False)
sketch7.addGeometry(Part.LineSegment(App.Vector(11, -71.2, 0), App.Vector(10, -71.2, 0)), False)
sketch7.addConstraint(Sketcher.Constraint("Coincident", 0, 2, 1, 1))
sketch7.addConstraint(Sketcher.Constraint("Coincident", 1, 2, 2, 1))
sketch7.addConstraint(Sketcher.Constraint("Coincident", 2, 2, 3, 1))
sketch7.addConstraint(Sketcher.Constraint("Coincident", 3, 2, 0, 1))
sketch7.addConstraint(Sketcher.Constraint("Coincident", 4, 2, 5, 1))
sketch7.addConstraint(Sketcher.Constraint("Coincident", 5, 2, 6, 1))
sketch7.addConstraint(Sketcher.Constraint("Coincident", 6, 2, 7, 1))
sketch7.addConstraint(Sketcher.Constraint("Coincident", 7, 2, 4, 1))
sketch7.addConstraint(Sketcher.Constraint("Vertical", 0))
sketch7.addConstraint(Sketcher.Constraint("Horizontal", 1))
sketch7.addConstraint(Sketcher.Constraint("Vertical", 2))
sketch7.addConstraint(Sketcher.Constraint("Horizontal", 3))
sketch7.addConstraint(Sketcher.Constraint("Vertical", 4))
sketch7.addConstraint(Sketcher.Constraint("Horizontal", 5))
sketch7.addConstraint(Sketcher.Constraint("Vertical", 6))
sketch7.addConstraint(Sketcher.Constraint("Horizontal", 7))
sketch7.addConstraint(Sketcher.Constraint("Symmetric", 1, 2, 4, 2, -2))
sketch7.addConstraint(Sketcher.Constraint("Symmetric", 3, 2, 6, 2, -2))
sketch7.addConstraint(Sketcher.Constraint("DistanceX", 1, 1, 1, 2, 1.0))
sketch7.addConstraint(Sketcher.Constraint("DistanceY", 0, 1, 0, 2, 20.0))
sketch7.addConstraint(Sketcher.Constraint("DistanceX", 0, 2, -1, 1, 11.0))
sketch7.addConstraint(Sketcher.Constraint("DistanceY", 0, 2, -1, 1, 51.25))
pocket5 = body.newObject("PartDesign::Pocket", "Pocket004")
pocket5.Profile = sketch7
pocket5.Type = "ThroughAll"
pocket5.Reversed = True

sketch8 = body.newObject("Sketcher::SketchObject", "Sketch007")
sketch8.AttachmentSupport = (doc.getObject("XZ_Plane"), [""])
sketch8.MapMode = "FlatFace"
sketch8.addGeometry(Part.LineSegment(App.Vector(-43, -101, 0), App.Vector(-43, -100, 0)), False)
sketch8.addGeometry(Part.LineSegment(App.Vector(-43, -100, 0), App.Vector(43, -100, 0)), False)
sketch8.addGeometry(Part.LineSegment(App.Vector(43, -100, 0), App.Vector(43, -101, 0)), False)
sketch8.addGeometry(Part.LineSegment(App.Vector(43, -101, 0), App.Vector(-43, -101, 0)), False)
sketch8.addConstraint(Sketcher.Constraint("Coincident", 0, 2, 1, 1))
sketch8.addConstraint(Sketcher.Constraint("Coincident", 1, 2, 2, 1))
sketch8.addConstraint(Sketcher.Constraint("Coincident", 2, 2, 3, 1))
sketch8.addConstraint(Sketcher.Constraint("Coincident", 3, 2, 0, 1))
sketch8.addConstraint(Sketcher.Constraint("Vertical", 0))
sketch8.addConstraint(Sketcher.Constraint("Horizontal", 1))
sketch8.addConstraint(Sketcher.Constraint("Vertical", 2))
sketch8.addConstraint(Sketcher.Constraint("Horizontal", 3))
sketch8.addConstraint(Sketcher.Constraint("DistanceX", 1, 1, 1, 2, 86.0))
sketch8.addConstraint(Sketcher.Constraint("DistanceY", 0, 1, 0, 2, 1.0))
sketch8.addConstraint(Sketcher.Constraint("DistanceX", 0, 2, -1, 1, 43.0))
sketch8.addConstraint(Sketcher.Constraint("DistanceY", 0, 2, -1, 1, 100.0))
pad3 = body.newObject("PartDesign::Pad", "Pad002")
pad3.Profile = sketch8
pad3.Length = 1.3
pad3.Reversed = True

doc.recompute()
